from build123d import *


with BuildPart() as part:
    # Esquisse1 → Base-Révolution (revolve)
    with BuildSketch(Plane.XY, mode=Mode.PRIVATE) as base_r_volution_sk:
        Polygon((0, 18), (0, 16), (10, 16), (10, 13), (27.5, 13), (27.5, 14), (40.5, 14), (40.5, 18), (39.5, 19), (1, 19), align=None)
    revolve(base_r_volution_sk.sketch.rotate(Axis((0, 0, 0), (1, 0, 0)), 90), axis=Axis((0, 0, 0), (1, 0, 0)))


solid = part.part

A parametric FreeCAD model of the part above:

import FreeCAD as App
import Part
import Sketcher
from FreeCAD import Vector
Q = App.Units.Quantity

doc = App.newDocument("Part")
body = doc.addObject("PartDesign::Body", "Body")

sketch1 = body.newObject("Sketcher::SketchObject", "Sketch")
sketch1.AttachmentSupport = (doc.getObject("XY_Plane"), [""])
sketch1.MapMode = "FlatFace"
sketch1.addGeometry([
    Part.LineSegment(Vector(0, 18, 0), Vector(0, 16, 0)),
    Part.LineSegment(Vector(0, 16, 0), Vector(10, 16, 0)),
    Part.LineSegment(Vector(10, 16, 0), Vector(10, 13, 0)),
    Part.LineSegment(Vector(10, 13, 0), Vector(27.5, 13, 0)),
    Part.LineSegment(Vector(27.5, 13, 0), Vector(27.5, 14, 0)),
    Part.LineSegment(Vector(27.5, 14, 0), Vector(40.5, 14, 0)),
    Part.LineSegment(Vector(40.5, 14, 0), Vector(40.5, 18, 0)),
    Part.LineSegment(Vector(40.5, 18, 0), Vector(39.5, 19, 0)),
    Part.LineSegment(Vector(39.5, 19, 0), Vector(1, 19, 0)),
    Part.LineSegment(Vector(1, 19, 0), Vector(0, 18, 0)),
], False)
sketch1.addConstraint([
    Sketcher.Constraint("Coincident", 0, 2, 1, 1),
    Sketcher.Constraint("Coincident", 1, 2, 2, 1),
    Sketcher.Constraint("Coincident", 2, 2, 3, 1),
    Sketcher.Constraint("Coincident", 3, 2, 4, 1),
    Sketcher.Constraint("Coincident", 4, 2, 5, 1),
    Sketcher.Constraint("Coincident", 5, 2, 6, 1),
    Sketcher.Constraint("Coincident", 6, 2, 7, 1),
    Sketcher.Constraint("Coincident", 7, 2, 8, 1),
    Sketcher.Constraint("Coincident", 8, 2, 9, 1),
    Sketcher.Constraint("Coincident", 9, 2, 0, 1),
    Sketcher.Constraint("Vertical", 0),
    Sketcher.Constraint("Horizontal", 1),
    Sketcher.Constraint("Vertical", 2),
    Sketcher.Constraint("Horizontal", 3),
    Sketcher.Constraint("Vertical", 4),
    Sketcher.Constraint("Horizontal", 5),
    Sketcher.Constraint("Vertical", 6),
    Sketcher.Constraint("Horizontal", 8),
    Sketcher.Constraint("PointOnObject", 0, 2, -2),
    Sketcher.Constraint("Perpendicular", 7, 9),
    Sketcher.Constraint("Horizontal", 6, 2, 9, 2),
    Sketcher.Constraint("Equal", 7, 9),
    Sketcher.Constraint("DistanceX", 1, 1, 1, 2, Q("10 mm")),
    Sketcher.Constraint("DistanceX", 5, 1, 5, 2, Q("13 mm")),
    Sketcher.Constraint("DistanceY", 0, 2, 0, 1, Q("2 mm")),
    Sketcher.Constraint("DistanceY", 2, 2, 2, 1, Q("3 mm")),
    Sketcher.Constraint("DistanceY", 4, 1, 4, 2, Q("1 mm")),
    Sketcher.Constraint("DistanceX", 3, 1, 3, 2, Q("17.5 mm")),
    Sketcher.Constraint("DistanceX", 8, 2, 8, 1, Q("38.5 mm")),
    Sketcher.Constraint("DistanceY", -1, 1, 0, 2, Q("16 mm")),
])
revolution = body.newObject("PartDesign::Revolution", "Revolution")
revolution.Profile = sketch1
revolution.ReferenceAxis = (sketch1, ["H_Axis"])
revolution.Angle = 360

doc.recompute()
